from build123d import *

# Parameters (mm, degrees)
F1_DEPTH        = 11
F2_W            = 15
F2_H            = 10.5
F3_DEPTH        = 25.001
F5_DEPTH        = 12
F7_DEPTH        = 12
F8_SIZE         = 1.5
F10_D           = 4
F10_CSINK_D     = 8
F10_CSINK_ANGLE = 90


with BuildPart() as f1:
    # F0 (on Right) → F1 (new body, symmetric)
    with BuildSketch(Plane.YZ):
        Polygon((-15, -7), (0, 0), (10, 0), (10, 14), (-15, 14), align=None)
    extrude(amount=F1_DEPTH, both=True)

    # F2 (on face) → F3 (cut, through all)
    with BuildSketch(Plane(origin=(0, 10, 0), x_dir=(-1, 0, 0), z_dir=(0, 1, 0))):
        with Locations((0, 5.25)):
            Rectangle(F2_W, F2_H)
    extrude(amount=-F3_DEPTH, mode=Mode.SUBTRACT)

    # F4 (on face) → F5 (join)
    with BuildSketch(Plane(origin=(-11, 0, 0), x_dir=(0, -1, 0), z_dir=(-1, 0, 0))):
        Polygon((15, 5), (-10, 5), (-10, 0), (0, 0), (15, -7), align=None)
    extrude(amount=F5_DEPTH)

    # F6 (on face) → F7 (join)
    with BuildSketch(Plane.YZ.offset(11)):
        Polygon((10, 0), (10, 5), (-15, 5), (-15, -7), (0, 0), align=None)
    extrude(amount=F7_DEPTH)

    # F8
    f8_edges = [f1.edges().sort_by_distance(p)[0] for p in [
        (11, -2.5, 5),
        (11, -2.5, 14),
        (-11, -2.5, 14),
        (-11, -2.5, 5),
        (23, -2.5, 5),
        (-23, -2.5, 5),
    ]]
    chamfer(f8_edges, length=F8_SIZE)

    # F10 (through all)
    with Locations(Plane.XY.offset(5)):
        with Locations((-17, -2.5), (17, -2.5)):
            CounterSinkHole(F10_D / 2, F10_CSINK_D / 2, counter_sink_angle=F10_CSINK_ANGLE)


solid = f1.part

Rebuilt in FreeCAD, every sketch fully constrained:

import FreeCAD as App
import Part
import Sketcher


def edges_at(feature, points):
    """Names of the edges that pass closest to the given points."""
    edges = feature.Shape.Edges
    near = lambda p: min(range(len(edges)), key=lambda i: edges[i].distToShape(Part.Vertex(*p))[0])
    return sorted({f"Edge{near(p) + 1}" for p in points})

doc = App.newDocument("Part")
body = doc.addObject("PartDesign::Body", "Body")

# Sketch on YZ plane
sketch1 = body.newObject("Sketcher::SketchObject", "Sketch")
sketch1.AttachmentSupport = (doc.getObject("YZ_Plane"), [""])
sketch1.MapMode = "FlatFace"
sketch1.addGeometry([
    Part.LineSegment(App.Vector(-15, -7, 0), App.Vector(0, 0, 0)),  # 0
    Part.LineSegment(App.Vector(0, 0, 0), App.Vector(10, 0, 0)),  # 1
    Part.LineSegment(App.Vector(10, 0, 0), App.Vector(10, 14, 0)),  # 2
    Part.LineSegment(App.Vector(10, 14, 0), App.Vector(-15, 14, 0)),  # 3
    Part.LineSegment(App.Vector(-15, 14, 0), App.Vector(-15, -7, 0)),  # 4
], False)
sketch1.addConstraint([
    Sketcher.Constraint("Coincident", 0, 2, 1, 1),
    Sketcher.Constraint("Coincident", 1, 2, 2, 1),
    Sketcher.Constraint("Coincident", 2, 2, 3, 1),
    Sketcher.Constraint("Coincident", 3, 2, 4, 1),
    Sketcher.Constraint("Coincident", 4, 2, 0, 1),
    Sketcher.Constraint("Horizontal", 1),
    Sketcher.Constraint("Vertical", 2),
    Sketcher.Constraint("Horizontal", 3),
    Sketcher.Constraint("Vertical", 4),
    Sketcher.Constraint("Coincident", 0, 2, -1, 1),
    Sketcher.Constraint("DistanceX", 1, 1, 1, 2, 10.0),
    Sketcher.Constraint("DistanceX", 3, 2, 3, 1, 25.0),
    Sketcher.Constraint("DistanceY", 2, 1, 2, 2, 14.0),
    Sketcher.Constraint("DistanceY", 4, 2, 4, 1, 21.0),
])
pad1 = body.newObject("PartDesign::Pad", "Pad")
pad1.Profile = sketch1
pad1.Length = 22
pad1.Midplane = True

# Sketch on XZ plane
sketch2 = body.newObject("Sketcher::SketchObject", "Sketch001")
sketch2.AttachmentSupport = (doc.getObject("XZ_Plane"), [""])
sketch2.MapMode = "FlatFace"
sketch2.AttachmentOffset = App.Placement(App.Vector(0, 0, -10), App.Rotation())
sketch2.addGeometry([
    Part.LineSegment(App.Vector(8, 10, 0), App.Vector(8, 0, 0)),
    Part.LineSegment(App.Vector(8, 0, 0), App.Vector(-8, 0, 0)),
    Part.LineSegment(App.Vector(-8, 0, 0), App.Vector(-8, 10, 0)),
    Part.LineSegment(App.Vector(-8, 10, 0), App.Vector(8, 10, 0)),
], False)
sketch2.addConstraint([
    Sketcher.Constraint("Coincident", 0, 2, 1, 1),
    Sketcher.Constraint("Coincident", 1, 2, 2, 1),
    Sketcher.Constraint("Coincident", 2, 2, 3, 1),
    Sketcher.Constraint("Coincident", 3, 2, 0, 1),
    Sketcher.Constraint("Vertical", 0),
    Sketcher.Constraint("Horizontal", 1),
    Sketcher.Constraint("Vertical", 2),
    Sketcher.Constraint("Horizontal", 3),
    Sketcher.Constraint("Symmetric", 0, 2, 1, 2, -1, 1),
    Sketcher.Constraint("DistanceX", 1, 2, 1, 1, 15.0),
    Sketcher.Constraint("DistanceY", 0, 2, 0, 1, 10.5),
])
pocket1 = body.newObject("PartDesign::Pocket", "Pocket")
pocket1.Profile = sketch2
pocket1.Type = "ThroughAll"
pocket1.Reversed = True

# Sketch on YZ plane
sketch3 = body.newObject("Sketcher::SketchObject", "Sketch002")
sketch3.AttachmentSupport = (doc.getObject("YZ_Plane"), [""])
sketch3.MapMode = "FlatFace"
sketch3.AttachmentOffset = App.Placement(App.Vector(0, 0, -11), App.Rotation())
sketch3.addGeometry([
    Part.LineSegment(App.Vector(-15, 5, 0), App.Vector(10, 5, 0)),  # 0
    Part.LineSegment(App.Vector(10, 5, 0), App.Vector(10, 0, 0)),  # 1
    Part.LineSegment(App.Vector(10, 0, 0), App.Vector(0, 0, 0)),  # 2
    Part.LineSegment(App.Vector(0, 0, 0), App.Vector(-15, -7, 0)),  # 3
    Part.LineSegment(App.Vector(-15, -7, 0), App.Vector(-15, 5, 0)),  # 4
], False)
sketch3.addConstraint([
    Sketcher.Constraint("Coincident", 0, 2, 1, 1),
    Sketcher.Constraint("Coincident", 1, 2, 2, 1),
    Sketcher.Constraint("Coincident", 2, 2, 3, 1),
    Sketcher.Constraint("Coincident", 3, 2, 4, 1),
    Sketcher.Constraint("Coincident", 4, 2, 0, 1),
    Sketcher.Constraint("Horizontal", 0),
    Sketcher.Constraint("Vertical", 1),
    Sketcher.Constraint("Horizontal", 2),
    Sketcher.Constraint("Vertical", 4),
    Sketcher.Constraint("Coincident", 2, 2, -1, 1),
    Sketcher.Constraint("DistanceX", 0, 1, 0, 2, 25.0),
    Sketcher.Constraint("DistanceX", 2, 2, 2, 1, 10.0),
    Sketcher.Constraint("DistanceY", 1, 2, 1, 1, 5.0),
    Sketcher.Constraint("DistanceY", 4, 1, 4, 2, 12.0),
])
pad2 = body.newObject("PartDesign::Pad", "Pad001")
pad2.Profile = sketch3
pad2.Length = 12
pad2.Reversed = True

# Sketch on YZ plane
sketch4 = body.newObject("Sketcher::SketchObject", "Sketch003")
sketch4.AttachmentSupport = (doc.getObject("YZ_Plane"), [""])
sketch4.MapMode = "FlatFace"
sketch4.AttachmentOffset = App.Placement(App.Vector(0, 0, 11), App.Rotation())
sketch4.addGeometry([
    Part.LineSegment(App.Vector(10, 0, 0), App.Vector(10, 5, 0)),  # 0
    Part.LineSegment(App.Vector(10, 5, 0), App.Vector(-15, 5, 0)),  # 1
    Part.LineSegment(App.Vector(-15, 5, 0), App.Vector(-15, -7, 0)),  # 2
    Part.LineSegment(App.Vector(-15, -7, 0), App.Vector(0, 0, 0)),  # 3
    Part.LineSegment(App.Vector(0, 0, 0), App.Vector(10, 0, 0)),  # 4
], False)
sketch4.addConstraint([
    Sketcher.Constraint("Coincident", 0, 2, 1, 1),
    Sketcher.Constraint("Coincident", 1, 2, 2, 1),
    Sketcher.Constraint("Coincident", 2, 2, 3, 1),
    Sketcher.Constraint("Coincident", 3, 2, 4, 1),
    Sketcher.Constraint("Coincident", 4, 2, 0, 1),
    Sketcher.Constraint("Vertical", 0),
    Sketcher.Constraint("Horizontal", 1),
    Sketcher.Constraint("Vertical", 2),
    Sketcher.Constraint("Horizontal", 4),
    Sketcher.Constraint("Coincident", 3, 2, -1, 1),
    Sketcher.Constraint("DistanceX", 1, 2, 1, 1, 25.0),
    Sketcher.Constraint("DistanceX", 4, 1, 4, 2, 10.0),
    Sketcher.Constraint("DistanceY", 0, 1, 0, 2, 5.0),
    Sketcher.Constraint("DistanceY", 2, 2, 2, 1, 12.0),
])
pad3 = body.newObject("PartDesign::Pad", "Pad002")
pad3.Profile = sketch4
pad3.Length = 12
doc.recompute()

chamfer = body.newObject("PartDesign::Chamfer", "Chamfer")
chamfer.Base = (pad3, edges_at(pad3, [
    (11, -2.5, 5),
    (11, -2.5, 14),
    (-11, -2.5, 14),
    (-11, -2.5, 5),
    (23, -2.5, 5),
    (-23, -2.5, 5),
]))
chamfer.Size = 1.5

# Sketch on XY plane
sketch5 = body.newObject("Sketcher::SketchObject", "Sketch004")
sketch5.AttachmentSupport = (doc.getObject("XY_Plane"), [""])
sketch5.MapMode = "FlatFace"
sketch5.AttachmentOffset = App.Placement(App.Vector(0, 0, 5), App.Rotation())
sketch5.addGeometry([
    Part.Circle(App.Vector(-17, -2.5, 0), App.Vector(0, 0, 1), 2),
    Part.Circle(App.Vector(17, -2.5, 0), App.Vector(0, 0, 1), 2),
], False)
sketch5.addConstraint([
    Sketcher.Constraint("Equal", 0, 1),
    Sketcher.Constraint("Symmetric", 0, 3, 1, 3, -2),
    Sketcher.Constraint("Diameter", 0, 4.0),
    Sketcher.Constraint("DistanceX", 0, 3, -1, 1, 17.0),
    Sketcher.Constraint("DistanceY", 0, 3, -1, 1, 2.5),
])
doc.recompute()
hole = body.newObject("PartDesign::Hole", "Hole")
hole.Profile = sketch5
hole.ThreadType = "None"
hole.Diameter = 4
hole.DepthType = "ThroughAll"
hole.HoleCutType = "Countersink"
hole.HoleCutDiameter = 8
hole.HoleCutCountersinkAngle = 90

doc.recompute()
